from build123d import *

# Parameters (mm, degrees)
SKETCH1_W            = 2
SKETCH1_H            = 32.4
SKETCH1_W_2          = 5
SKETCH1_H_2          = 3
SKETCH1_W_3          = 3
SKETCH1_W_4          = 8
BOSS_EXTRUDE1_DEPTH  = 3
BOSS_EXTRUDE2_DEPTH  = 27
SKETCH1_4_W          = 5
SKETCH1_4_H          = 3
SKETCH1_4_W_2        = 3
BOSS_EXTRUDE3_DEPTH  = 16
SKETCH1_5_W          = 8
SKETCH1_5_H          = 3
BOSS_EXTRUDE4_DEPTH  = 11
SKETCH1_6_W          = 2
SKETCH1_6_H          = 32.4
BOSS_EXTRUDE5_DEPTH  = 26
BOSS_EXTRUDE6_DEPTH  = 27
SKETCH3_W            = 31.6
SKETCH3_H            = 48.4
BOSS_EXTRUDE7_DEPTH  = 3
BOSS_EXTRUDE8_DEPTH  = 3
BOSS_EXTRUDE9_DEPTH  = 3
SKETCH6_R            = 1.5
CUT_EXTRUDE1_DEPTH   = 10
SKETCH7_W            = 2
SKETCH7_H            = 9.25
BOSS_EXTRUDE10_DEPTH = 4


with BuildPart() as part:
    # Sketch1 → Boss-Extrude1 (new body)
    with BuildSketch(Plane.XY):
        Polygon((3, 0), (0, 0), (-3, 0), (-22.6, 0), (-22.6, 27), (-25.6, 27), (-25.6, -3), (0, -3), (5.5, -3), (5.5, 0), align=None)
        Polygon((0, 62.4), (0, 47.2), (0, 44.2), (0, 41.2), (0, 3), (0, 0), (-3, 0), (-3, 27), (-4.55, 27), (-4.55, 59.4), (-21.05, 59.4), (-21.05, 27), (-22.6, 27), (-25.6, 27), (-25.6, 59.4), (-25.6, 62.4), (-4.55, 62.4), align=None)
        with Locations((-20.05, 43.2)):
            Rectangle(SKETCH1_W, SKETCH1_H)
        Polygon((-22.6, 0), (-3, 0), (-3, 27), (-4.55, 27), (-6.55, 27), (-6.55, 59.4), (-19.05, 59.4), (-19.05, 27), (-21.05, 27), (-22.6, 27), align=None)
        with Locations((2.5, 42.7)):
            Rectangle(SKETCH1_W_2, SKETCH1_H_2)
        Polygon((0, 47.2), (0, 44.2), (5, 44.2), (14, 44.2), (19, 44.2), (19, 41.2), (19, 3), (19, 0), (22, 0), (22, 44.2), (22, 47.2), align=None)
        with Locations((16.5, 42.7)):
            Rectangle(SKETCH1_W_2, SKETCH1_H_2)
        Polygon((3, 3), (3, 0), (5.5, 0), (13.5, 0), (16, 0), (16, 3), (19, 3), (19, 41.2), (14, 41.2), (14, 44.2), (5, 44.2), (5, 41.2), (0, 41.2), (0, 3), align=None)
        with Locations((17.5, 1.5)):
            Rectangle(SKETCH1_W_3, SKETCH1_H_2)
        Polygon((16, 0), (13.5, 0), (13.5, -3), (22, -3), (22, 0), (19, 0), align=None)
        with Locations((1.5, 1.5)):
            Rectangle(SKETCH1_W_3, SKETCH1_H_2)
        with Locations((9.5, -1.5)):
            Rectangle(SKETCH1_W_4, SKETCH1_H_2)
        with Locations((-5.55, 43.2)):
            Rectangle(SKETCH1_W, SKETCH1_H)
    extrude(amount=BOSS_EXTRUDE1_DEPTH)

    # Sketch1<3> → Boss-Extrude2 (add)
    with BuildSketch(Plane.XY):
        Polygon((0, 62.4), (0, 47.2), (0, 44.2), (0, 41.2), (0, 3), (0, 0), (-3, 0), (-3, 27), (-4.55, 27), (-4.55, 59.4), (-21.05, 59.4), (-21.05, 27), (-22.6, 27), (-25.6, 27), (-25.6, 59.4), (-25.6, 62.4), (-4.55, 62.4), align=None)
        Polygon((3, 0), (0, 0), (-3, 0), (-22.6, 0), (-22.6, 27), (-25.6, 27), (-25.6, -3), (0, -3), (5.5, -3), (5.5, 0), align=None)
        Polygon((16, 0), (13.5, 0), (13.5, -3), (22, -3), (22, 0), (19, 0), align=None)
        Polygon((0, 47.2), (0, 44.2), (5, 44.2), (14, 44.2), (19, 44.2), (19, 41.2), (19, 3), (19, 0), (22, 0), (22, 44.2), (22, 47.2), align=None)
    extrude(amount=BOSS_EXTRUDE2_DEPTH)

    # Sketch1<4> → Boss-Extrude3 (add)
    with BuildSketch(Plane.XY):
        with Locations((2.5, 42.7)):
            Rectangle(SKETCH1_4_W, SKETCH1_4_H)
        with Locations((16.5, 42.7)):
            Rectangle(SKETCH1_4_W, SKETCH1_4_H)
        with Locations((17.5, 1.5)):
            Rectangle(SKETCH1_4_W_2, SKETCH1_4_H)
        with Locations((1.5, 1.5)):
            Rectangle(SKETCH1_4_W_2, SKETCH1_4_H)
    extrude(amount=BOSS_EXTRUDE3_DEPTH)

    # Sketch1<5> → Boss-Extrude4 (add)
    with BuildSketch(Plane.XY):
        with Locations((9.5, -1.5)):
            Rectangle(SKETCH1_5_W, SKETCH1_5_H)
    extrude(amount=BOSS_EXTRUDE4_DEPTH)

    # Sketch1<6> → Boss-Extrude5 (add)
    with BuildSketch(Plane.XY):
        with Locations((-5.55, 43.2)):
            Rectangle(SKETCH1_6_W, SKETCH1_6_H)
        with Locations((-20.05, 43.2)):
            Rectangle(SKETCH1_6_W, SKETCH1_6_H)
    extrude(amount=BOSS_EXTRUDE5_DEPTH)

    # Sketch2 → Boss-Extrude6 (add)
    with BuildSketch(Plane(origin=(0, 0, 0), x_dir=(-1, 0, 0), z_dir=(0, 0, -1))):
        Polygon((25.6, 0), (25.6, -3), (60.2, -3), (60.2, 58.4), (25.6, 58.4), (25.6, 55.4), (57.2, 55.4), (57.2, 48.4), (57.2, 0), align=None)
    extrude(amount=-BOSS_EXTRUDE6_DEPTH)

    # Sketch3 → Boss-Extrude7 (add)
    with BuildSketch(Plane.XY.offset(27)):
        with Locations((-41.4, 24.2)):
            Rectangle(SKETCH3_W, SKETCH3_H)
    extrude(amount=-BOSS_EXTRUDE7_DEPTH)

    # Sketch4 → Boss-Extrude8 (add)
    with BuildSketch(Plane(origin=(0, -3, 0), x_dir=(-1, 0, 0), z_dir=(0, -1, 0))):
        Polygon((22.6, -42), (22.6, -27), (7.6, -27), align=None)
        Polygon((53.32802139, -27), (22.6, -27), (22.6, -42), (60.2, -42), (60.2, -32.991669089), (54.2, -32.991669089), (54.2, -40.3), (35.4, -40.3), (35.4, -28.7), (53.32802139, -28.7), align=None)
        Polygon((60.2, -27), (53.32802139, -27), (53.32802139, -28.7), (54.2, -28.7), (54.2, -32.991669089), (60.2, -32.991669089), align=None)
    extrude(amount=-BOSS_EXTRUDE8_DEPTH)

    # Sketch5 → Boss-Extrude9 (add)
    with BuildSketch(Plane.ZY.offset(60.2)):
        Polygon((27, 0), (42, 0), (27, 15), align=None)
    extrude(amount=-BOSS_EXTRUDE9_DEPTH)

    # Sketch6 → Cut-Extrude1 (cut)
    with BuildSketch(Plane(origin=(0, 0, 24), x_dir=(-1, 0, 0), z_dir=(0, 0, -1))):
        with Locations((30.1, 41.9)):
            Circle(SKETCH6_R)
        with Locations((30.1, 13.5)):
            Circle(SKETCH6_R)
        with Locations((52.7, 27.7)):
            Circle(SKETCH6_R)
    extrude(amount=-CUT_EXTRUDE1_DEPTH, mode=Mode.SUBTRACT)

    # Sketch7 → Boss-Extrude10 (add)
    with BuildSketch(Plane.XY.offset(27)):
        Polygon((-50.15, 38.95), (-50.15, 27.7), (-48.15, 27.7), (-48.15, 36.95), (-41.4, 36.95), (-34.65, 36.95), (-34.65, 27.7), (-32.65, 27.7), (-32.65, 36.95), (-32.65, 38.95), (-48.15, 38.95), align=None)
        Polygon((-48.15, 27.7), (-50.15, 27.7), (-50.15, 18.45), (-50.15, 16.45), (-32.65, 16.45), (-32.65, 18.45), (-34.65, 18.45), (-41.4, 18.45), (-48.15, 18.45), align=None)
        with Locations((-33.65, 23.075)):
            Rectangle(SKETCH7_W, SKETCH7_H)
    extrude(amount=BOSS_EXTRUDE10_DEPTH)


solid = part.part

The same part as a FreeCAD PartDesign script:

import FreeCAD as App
import Part
import Sketcher
from FreeCAD import Vector
Q = App.Units.Quantity

doc = App.newDocument("Part")
params = doc.addObject("Spreadsheet::Sheet", "Params")
for row, (alias, value) in enumerate([
    ("sketch1_width", "22 mm"),
    ("sketch1_width2", "47.6 mm"),
    ("sketch1_height", "50.2 mm"),
    ("sketch1_height2", "15.2 mm"),
    ("pad1_length", "3 mm"),
    ("sketch2_width", "19 mm"),
    ("sketch2_width2", "22 mm"),
    ("sketch2_height", "3 mm"),
    ("sketch2_height2", "27 mm"),
    ("sketch2_width3", "5.5 mm"),
    ("pad2_length", "27 mm"),
    ("sketch3_width", "5 mm"),
    ("sketch3_width2", "3 mm"),
    ("pad3_length", "16 mm"),
    ("sketch4_width", "8 mm"),
    ("sketch4_height", "3 mm"),
    ("pad4_length", "11 mm"),
    ("sketch5_width", "2 mm"),
    ("sketch5_height", "32.4 mm"),
    ("pad5_length", "26 mm"),
    ("sketch6_height", "3 mm"),
    ("sketch6_width", "34.6 mm"),
    ("sketch6_width2", "31.6 mm"),
    ("sketch6_height2", "61.4 mm"),
    ("pad6_length", "27 mm"),
    ("sketch7_width", "31.6 mm"),
    ("sketch7_height", "48.4 mm"),
    ("pad7_length", "3 mm"),
    ("sketch8_height", "15 mm"),
    ("sketch8_width", "37.6 mm"),
    ("sketch8_width2", "18.8 mm"),
    ("sketch8_height2", "11.6 mm"),
    ("pad8_length", "3 mm"),
    ("sketch9_width", "15 mm"),
    ("pad9_length", "3 mm"),
    ("sketch10_diameter", "3 mm"),
    ("pocket1_length", "10 mm"),
    ("sketch11_width", "17.5 mm"),
    ("sketch11_width2", "13.5 mm"),
    ("sketch11_height", "22.5 mm"),
    ("sketch11_height2", "18.5 mm"),
    ("pad10_length", "4 mm"),
], start=1):
    params.set(f"A{row}", alias)
    params.set(f"B{row}", "=" + value)
    params.setAlias(f"B{row}", alias)

body = doc.addObject("PartDesign::Body", "Body")

# Sketch on XY plane
sketch1 = doc.addObject("Sketcher::SketchObject", "Sketch")
body.addObject(sketch1)
sketch1.AttachmentSupport = (doc.XY_Plane, [""])
sketch1.MapMode = "FlatFace"
sketch1.addGeometry([
    Part.LineSegment(Vector(-26, -3, 0), Vector(22, -3, 0)),  # 0
    Part.LineSegment(Vector(22, -3, 0), Vector(22, 47, 0)),  # 1
    Part.LineSegment(Vector(22, 47, 0), Vector(0, 47, 0)),  # 2
    Part.LineSegment(Vector(0, 47, 0), Vector(0, 62, 0)),  # 3
    Part.LineSegment(Vector(0, 62, 0), Vector(-26, 62, 0)),  # 4
    Part.LineSegment(Vector(-26, 62, 0), Vector(-26, -3, 0)),  # 5
], False)
sketch1.addConstraint([
    Sketcher.Constraint("Coincident", 0, 2, 1, 1),
    Sketcher.Constraint("Coincident", 1, 2, 2, 1),
    Sketcher.Constraint("Coincident", 2, 2, 3, 1),
    Sketcher.Constraint("Coincident", 3, 2, 4, 1),
    Sketcher.Constraint("Coincident", 4, 2, 5, 1),
    Sketcher.Constraint("Coincident", 5, 2, 0, 1),
    Sketcher.Constraint("Horizontal", 0),
    Sketcher.Constraint("Vertical", 1),
    Sketcher.Constraint("Horizontal", 2),
    Sketcher.Constraint("Vertical", 3),
    Sketcher.Constraint("Horizontal", 4),
    Sketcher.Constraint("Vertical", 5),
    Sketcher.Constraint("PointOnObject", 2, 2, -2),
    Sketcher.Constraint("DistanceX", 2, 2, 2, 1, 22.0),
    Sketcher.Constraint("DistanceX", 0, 1, 0, 2, 47.6),
    Sketcher.Constraint("DistanceY", 1, 1, 1, 2, 50.2),
    Sketcher.Constraint("DistanceY", 3, 1, 3, 2, 15.2),
    Sketcher.Constraint("DistanceY", 0, 2, -1, 1, 3.0),
])
sketch1.setExpression("Constraints[13]", "Params.sketch1_width")
sketch1.setExpression("Constraints[14]", "Params.sketch1_width2")
sketch1.setExpression("Constraints[15]", "Params.sketch1_height")
sketch1.setExpression("Constraints[16]", "Params.sketch1_height2")
pad1 = doc.addObject("PartDesign::Pad", "Pad")
body.addObject(pad1)
pad1.Profile = sketch1
pad1.setExpression("Length", "Params.pad1_length")

# Sketch on XY plane
sketch2 = doc.addObject("Sketcher::SketchObject", "Sketch001")
body.addObject(sketch2)
sketch2.AttachmentSupport = (doc.XY_Plane, [""])
sketch2.MapMode = "FlatFace"
sketch2.addGeometry([
    Part.LineSegment(Vector(0, 0, 0), Vector(0, 44.2, 0)),  # 0
    Part.LineSegment(Vector(0, 44.2, 0), Vector(19, 44.2, 0)),  # 1
    Part.LineSegment(Vector(19, 44.2, 0), Vector(19, 0, 0)),  # 2
    Part.LineSegment(Vector(19, 0, 0), Vector(13.5, 0, 0)),  # 3
    Part.LineSegment(Vector(13.5, 0, 0), Vector(13.5, -3, 0)),  # 4
    Part.LineSegment(Vector(13.5, -3, 0), Vector(22, -3, 0)),  # 5
    Part.LineSegment(Vector(22, -3, 0), Vector(22, 47.2, 0)),  # 6
    Part.LineSegment(Vector(22, 47.2, 0), Vector(0, 47.2, 0)),  # 7
    Part.LineSegment(Vector(0, 47.2, 0), Vector(0, 62.4, 0)),  # 8
    Part.LineSegment(Vector(0, 62.4, 0), Vector(-25.6, 62.4, 0)),  # 9
    Part.LineSegment(Vector(-25.6, 62.4, 0), Vector(-25.6, -3, 0)),  # 10
    Part.LineSegment(Vector(-25.6, -3, 0), Vector(5.5, -3, 0)),  # 11
    Part.LineSegment(Vector(5.5, -3, 0), Vector(5.5, 0, 0)),  # 12
    Part.LineSegment(Vector(5.5, 0, 0), Vector(0, 0, 0)),  # 13
    Part.LineSegment(Vector(-3, 27, 0), Vector(-3, 0, 0)),  # 14
    Part.LineSegment(Vector(-3, 0, 0), Vector(-22.6, 0, 0)),  # 15
    Part.LineSegment(Vector(-22.6, 0, 0), Vector(-22.6, 27, 0)),  # 16
    Part.LineSegment(Vector(-22.6, 27, 0), Vector(-21.1, 27, 0)),  # 17
    Part.LineSegment(Vector(-21.1, 27, 0), Vector(-21.1, 59.4, 0)),  # 18
    Part.LineSegment(Vector(-21.1, 59.4, 0), Vector(-4.5, 59.4, 0)),  # 19
    Part.LineSegment(Vector(-4.5, 59.4, 0), Vector(-4.5, 27, 0)),  # 20
    Part.LineSegment(Vector(-4.5, 27, 0), Vector(-3, 27, 0)),  # 21
], False)
sketch2.addConstraint([
    Sketcher.Constraint("Coincident", 0, 2, 1, 1),
    Sketcher.Constraint("Coincident", 1, 2, 2, 1),
    Sketcher.Constraint("Coincident", 2, 2, 3, 1),
    Sketcher.Constraint("Coincident", 3, 2, 4, 1),
    Sketcher.Constraint("Coincident", 4, 2, 5, 1),
    Sketcher.Constraint("Coincident", 5, 2, 6, 1),
    Sketcher.Constraint("Coincident", 6, 2, 7, 1),
    Sketcher.Constraint("Coincident", 7, 2, 8, 1),
    Sketcher.Constraint("Coincident", 8, 2, 9, 1),
    Sketcher.Constraint("Coincident", 9, 2, 10, 1),
    Sketcher.Constraint("Coincident", 10, 2, 11, 1),
    Sketcher.Constraint("Coincident", 11, 2, 12, 1),
    Sketcher.Constraint("Coincident", 12, 2, 13, 1),
    Sketcher.Constraint("Coincident", 13, 2, 0, 1),
    Sketcher.Constraint("Coincident", 14, 2, 15, 1),
    Sketcher.Constraint("Coincident", 15, 2, 16, 1),
    Sketcher.Constraint("Coincident", 16, 2, 17, 1),
    Sketcher.Constraint("Coincident", 17, 2, 18, 1),
    Sketcher.Constraint("Coincident", 18, 2, 19, 1),
    Sketcher.Constraint("Coincident", 19, 2, 20, 1),
    Sketcher.Constraint("Coincident", 20, 2, 21, 1),
    Sketcher.Constraint("Coincident", 21, 2, 14, 1),
    Sketcher.Constraint("Vertical", 0),
    Sketcher.Constraint("Horizontal", 1),
    Sketcher.Constraint("Vertical", 2),
    Sketcher.Constraint("Horizontal", 3),
    Sketcher.Constraint("Vertical", 4),
    Sketcher.Constraint("Horizontal", 5),
    Sketcher.Constraint("Vertical", 6),
    Sketcher.Constraint("Horizontal", 7),
    Sketcher.Constraint("Vertical", 8),
    Sketcher.Constraint("Horizontal", 9),
    Sketcher.Constraint("Vertical", 10),
    Sketcher.Constraint("Horizontal", 11),
    Sketcher.Constraint("Vertical", 12),
    Sketcher.Constraint("Horizontal", 13),
    Sketcher.Constraint("Vertical", 14),
    Sketcher.Constraint("Horizontal", 15),
    Sketcher.Constraint("Vertical", 16),
    Sketcher.Constraint("Horizontal", 17),
    Sketcher.Constraint("Vertical", 18),
    Sketcher.Constraint("Horizontal", 19),
    Sketcher.Constraint("Vertical", 20),
    Sketcher.Constraint("Horizontal", 21),
    Sketcher.Constraint("Coincident", 13, 2, -1, 1),
    Sketcher.Constraint("PointOnObject", 2, 2, -1),
    Sketcher.Constraint("PointOnObject", 7, 2, -2),
    Sketcher.Constraint("PointOnObject", 14, 2, -1),
    Sketcher.Constraint("Horizontal", 5, 2, 10, 2),
    Sketcher.Constraint("Horizontal", 17, 2, 20, 2),
    Sketcher.Constraint("Equal", 3, 13),
    Sketcher.Constraint("Equal", 17, 21),
    Sketcher.Constraint("DistanceX", 1, 1, 1, 2, 19.0),
    Sketcher.Constraint("DistanceX", 7, 2, 7, 1, 22.0),
    Sketcher.Constraint("DistanceY", 4, 2, 4, 1, 3.0),
    Sketcher.Constraint("DistanceY", 14, 2, 14, 1, 27.0),
    Sketcher.Constraint("DistanceX", 3, 2, 3, 1, 5.5),
    Sketcher.Constraint("DistanceX", 9, 2, 9, 1, 25.6),
    Sketcher.Constraint("DistanceX", 15, 2, 15, 1, 19.6),
    Sketcher.Constraint("DistanceX", 19, 1, 19, 2, 16.5),
    Sketcher.Constraint("DistanceY", 0, 1, 0, 2, 44.2),
    Sketcher.Constraint("DistanceY", 6, 1, 6, 2, 50.2),
    Sketcher.Constraint("DistanceY", 8, 1, 8, 2, 15.2),
    Sketcher.Constraint("DistanceY", 18, 1, 18, 2, 32.4),
    Sketcher.Constraint("DistanceX", 14, 2, -1, 1, 3.0),
])
sketch2.setExpression("Constraints[52]", "Params.sketch2_width")
sketch2.setExpression("Constraints[53]", "Params.sketch2_width2")
sketch2.setExpression("Constraints[54]", "Params.sketch2_height")
sketch2.setExpression("Constraints[55]", "Params.sketch2_height2")
sketch2.setExpression("Constraints[56]", "Params.sketch2_width3")
pad2 = doc.addObject("PartDesign::Pad", "Pad001")
body.addObject(pad2)
pad2.Profile = sketch2
pad2.setExpression("Length", "Params.pad2_length")

# Sketch on XY plane
sketch3 = doc.addObject("Sketcher::SketchObject", "Sketch002")
body.addObject(sketch3)
sketch3.AttachmentSupport = (doc.XY_Plane, [""])
sketch3.MapMode = "FlatFace"
sketch3.addGeometry([
    Part.LineSegment(Vector(0, 44.2, 0), Vector(0, 41.2, 0)),  # 0
    Part.LineSegment(Vector(0, 41.2, 0), Vector(5, 41.2, 0)),  # 1
    Part.LineSegment(Vector(5, 41.2, 0), Vector(5, 44.2, 0)),  # 2
    Part.LineSegment(Vector(5, 44.2, 0), Vector(0, 44.2, 0)),  # 3
    Part.LineSegment(Vector(14, 44.2, 0), Vector(14, 41.2, 0)),  # 4
    Part.LineSegment(Vector(14, 41.2, 0), Vector(19, 41.2, 0)),  # 5
    Part.LineSegment(Vector(19, 41.2, 0), Vector(19, 44.2, 0)),  # 6
    Part.LineSegment(Vector(19, 44.2, 0), Vector(14, 44.2, 0)),  # 7
    Part.LineSegment(Vector(16, 3, 0), Vector(16, 0, 0)),  # 8
    Part.LineSegment(Vector(16, 0, 0), Vector(19, 0, 0)),  # 9
    Part.LineSegment(Vector(19, 0, 0), Vector(19, 3, 0)),  # 10
    Part.LineSegment(Vector(19, 3, 0), Vector(16, 3, 0)),  # 11
    Part.LineSegment(Vector(0, 3, 0), Vector(0, 0, 0)),  # 12
    Part.LineSegment(Vector(0, 0, 0), Vector(3, 0, 0)),  # 13
    Part.LineSegment(Vector(3, 0, 0), Vector(3, 3, 0)),  # 14
    Part.LineSegment(Vector(3, 3, 0), Vector(0, 3, 0)),  # 15
], False)
sketch3.addConstraint([
    Sketcher.Constraint("Coincident", 0, 2, 1, 1),
    Sketcher.Constraint("Coincident", 1, 2, 2, 1),
    Sketcher.Constraint("Coincident", 2, 2, 3, 1),
    Sketcher.Constraint("Coincident", 3, 2, 0, 1),
    Sketcher.Constraint("Coincident", 4, 2, 5, 1),
    Sketcher.Constraint("Coincident", 5, 2, 6, 1),
    Sketcher.Constraint("Coincident", 6, 2, 7, 1),
    Sketcher.Constraint("Coincident", 7, 2, 4, 1),
    Sketcher.Constraint("Coincident", 8, 2, 9, 1),
    Sketcher.Constraint("Coincident", 9, 2, 10, 1),
    Sketcher.Constraint("Coincident", 10, 2, 11, 1),
    Sketcher.Constraint("Coincident", 11, 2, 8, 1),
    Sketcher.Constraint("Coincident", 12, 2, 13, 1),
    Sketcher.Constraint("Coincident", 13, 2, 14, 1),
    Sketcher.Constraint("Coincident", 14, 2, 15, 1),
    Sketcher.Constraint("Coincident", 15, 2, 12, 1),
    Sketcher.Constraint("Vertical", 0),
    Sketcher.Constraint("Horizontal", 1),
    Sketcher.Constraint("Vertical", 2),
    Sketcher.Constraint("Horizontal", 3),
    Sketcher.Constraint("Vertical", 4),
    Sketcher.Constraint("Horizontal", 5),
    Sketcher.Constraint("Vertical", 6),
    Sketcher.Constraint("Horizontal", 7),
    Sketcher.Constraint("Vertical", 8),
    Sketcher.Constraint("Horizontal", 9),
    Sketcher.Constraint("Vertical", 10),
    Sketcher.Constraint("Horizontal", 11),
    Sketcher.Constraint("Vertical", 12),
    Sketcher.Constraint("Horizontal", 13),
    Sketcher.Constraint("Vertical", 14),
    Sketcher.Constraint("Horizontal", 15),
    Sketcher.Constraint("Coincident", 12, 2, -1, 1),
    Sketcher.Constraint("PointOnObject", 0, 2, -2),
    Sketcher.Constraint("PointOnObject", 8, 2, -1),
    Sketcher.Constraint("Horizontal", 1, 2, 4, 2),
    Sketcher.Constraint("Horizontal", 3, 2, 6, 2),
    Sketcher.Constraint("Horizontal", 11, 2, 14, 2),
    Sketcher.Constraint("Vertical", 6, 2, 9, 2),
    Sketcher.Constraint("Equal", 3, 5),
    Sketcher.Constraint("Equal", 11, 13),
    Sketcher.Constraint("Equal", 15, 0),
    Sketcher.Constraint("Equal", 6, 8),
    Sketcher.Constraint("DistanceX", 1, 1, 1, 2, 5.0),
    Sketcher.Constraint("DistanceX", 9, 1, 9, 2, 3.0),
    Sketcher.Constraint("DistanceX", -1, 1, 4, 2, 14.0),
    Sketcher.Constraint("DistanceY", -1, 1, 0, 2, 41.2),
])
sketch3.setExpression("Constraints[43]", "Params.sketch3_width")
sketch3.setExpression("Constraints[44]", "Params.sketch3_width2")
pad3 = doc.addObject("PartDesign::Pad", "Pad002")
body.addObject(pad3)
pad3.Profile = sketch3
pad3.setExpression("Length", "Params.pad3_length")

# Sketch on XY plane
sketch4 = doc.addObject("Sketcher::SketchObject", "Sketch003")
body.addObject(sketch4)
sketch4.AttachmentSupport = (doc.XY_Plane, [""])
sketch4.MapMode = "FlatFace"
sketch4.addGeometry([
    Part.LineSegment(Vector(5.5, 0, 0), Vector(5.5, -3, 0)),
    Part.LineSegment(Vector(5.5, -3, 0), Vector(13.5, -3, 0)),
    Part.LineSegment(Vector(13.5, -3, 0), Vector(13.5, 0, 0)),
    Part.LineSegment(Vector(13.5, 0, 0), Vector(5.5, 0, 0)),
], False)
sketch4.addConstraint([
    Sketcher.Constraint("Coincident", 0, 2, 1, 1),
    Sketcher.Constraint("Coincident", 1, 2, 2, 1),
    Sketcher.Constraint("Coincident", 2, 2, 3, 1),
    Sketcher.Constraint("Coincident", 3, 2, 0, 1),
    Sketcher.Constraint("Vertical", 0),
    Sketcher.Constraint("Horizontal", 1),
    Sketcher.Constraint("Vertical", 2),
    Sketcher.Constraint("Horizontal", 3),
    Sketcher.Constraint("PointOnObject", 2, 2, -1),
    Sketcher.Constraint("DistanceX", 1, 1, 1, 2, 8.0),
    Sketcher.Constraint("DistanceY", 0, 2, 0, 1, 3.0),
    Sketcher.Constraint("DistanceX", -1, 1, 0, 2, 5.5),
])
sketch4.setExpression("Constraints[9]", "Params.sketch4_width")
sketch4.setExpression("Constraints[10]", "Params.sketch4_height")
pad4 = doc.addObject("PartDesign::Pad", "Pad003")
body.addObject(pad4)
pad4.Profile = sketch4
pad4.setExpression("Length", "Params.pad4_length")

# Sketch on XY plane
sketch5 = doc.addObject("Sketcher::SketchObject", "Sketch004")
body.addObject(sketch5)
sketch5.AttachmentSupport = (doc.XY_Plane, [""])
sketch5.MapMode = "FlatFace"
sketch5.addGeometry([
    Part.LineSegment(Vector(-6.5, 59.4, 0), Vector(-6.5, 27, 0)),  # 0
    Part.LineSegment(Vector(-6.5, 27, 0), Vector(-4.5, 27, 0)),  # 1
    Part.LineSegment(Vector(-4.5, 27, 0), Vector(-4.5, 59.4, 0)),  # 2
    Part.LineSegment(Vector(-4.5, 59.4, 0), Vector(-6.5, 59.4, 0)),  # 3
    Part.LineSegment(Vector(-21.1, 59.4, 0), Vector(-21.1, 27, 0)),  # 4
    Part.LineSegment(Vector(-21.1, 27, 0), Vector(-19.1, 27, 0)),  # 5
    Part.LineSegment(Vector(-19.1, 27, 0), Vector(-19.1, 59.4, 0)),  # 6
    Part.LineSegment(Vector(-19.1, 59.4, 0), Vector(-21.1, 59.4, 0)),  # 7
], False)
sketch5.addConstraint([
    Sketcher.Constraint("Coincident", 0, 2, 1, 1),
    Sketcher.Constraint("Coincident", 1, 2, 2, 1),
    Sketcher.Constraint("Coincident", 2, 2, 3, 1),
    Sketcher.Constraint("Coincident", 3, 2, 0, 1),
    Sketcher.Constraint("Coincident", 4, 2, 5, 1),
    Sketcher.Constraint("Coincident", 5, 2, 6, 1),
    Sketcher.Constraint("Coincident", 6, 2, 7, 1),
    Sketcher.Constraint("Coincident", 7, 2, 4, 1),
    Sketcher.Constraint("Vertical", 0),
    Sketcher.Constraint("Horizontal", 1),
    Sketcher.Constraint("Vertical", 2),
    Sketcher.Constraint("Horizontal", 3),
    Sketcher.Constraint("Vertical", 4),
    Sketcher.Constraint("Horizontal", 5),
    Sketcher.Constraint("Vertical", 6),
    Sketcher.Constraint("Horizontal", 7),
    Sketcher.Constraint("Horizontal", 1, 2, 4, 2),
    Sketcher.Constraint("Horizontal", 3, 2, 6, 2),
    Sketcher.Constraint("Equal", 3, 5),
    Sketcher.Constraint("DistanceX", 1, 1, 1, 2, 2.0),
    Sketcher.Constraint("DistanceY", 0, 2, 0, 1, 32.4),
    Sketcher.Constraint("DistanceY", -1, 1, 0, 2, 27.0),
    Sketcher.Constraint("DistanceX", 4, 2, 0, 2, 14.5),
    Sketcher.Constraint("DistanceX", 0, 2, -1, 1, 6.55),
])
sketch5.setExpression("Constraints[19]", "Params.sketch5_width")
sketch5.setExpression("Constraints[20]", "Params.sketch5_height")
pad5 = doc.addObject("PartDesign::Pad", "Pad004")
body.addObject(pad5)
pad5.Profile = sketch5
pad5.setExpression("Length", "Params.pad5_length")

# Sketch on XY plane
sketch6 = doc.addObject("Sketcher::SketchObject", "Sketch005")
body.addObject(sketch6)
sketch6.AttachmentSupport = (doc.XY_Plane, [""])
sketch6.MapMode = "FlatFace"
sketch6.addGeometry([
    Part.LineSegment(Vector(-25.6, 0, 0), Vector(-25.6, -3, 0)),  # 0
    Part.LineSegment(Vector(-25.6, -3, 0), Vector(-60.2, -3, 0)),  # 1
    Part.LineSegment(Vector(-60.2, -3, 0), Vector(-60.2, 58.4, 0)),  # 2
    Part.LineSegment(Vector(-60.2, 58.4, 0), Vector(-25.6, 58.4, 0)),  # 3
    Part.LineSegment(Vector(-25.6, 58.4, 0), Vector(-25.6, 55.4, 0)),  # 4
    Part.LineSegment(Vector(-25.6, 55.4, 0), Vector(-57.2, 55.4, 0)),  # 5
    Part.LineSegment(Vector(-57.2, 55.4, 0), Vector(-57.2, 0, 0)),  # 6
    Part.LineSegment(Vector(-57.2, 0, 0), Vector(-25.6, 0, 0)),  # 7
], False)
sketch6.addConstraint([
    Sketcher.Constraint("Coincident", 0, 2, 1, 1),
    Sketcher.Constraint("Coincident", 1, 2, 2, 1),
    Sketcher.Constraint("Coincident", 2, 2, 3, 1),
    Sketcher.Constraint("Coincident", 3, 2, 4, 1),
    Sketcher.Constraint("Coincident", 4, 2, 5, 1),
    Sketcher.Constraint("Coincident", 5, 2, 6, 1),
    Sketcher.Constraint("Coincident", 6, 2, 7, 1),
    Sketcher.Constraint("Coincident", 7, 2, 0, 1),
    Sketcher.Constraint("Vertical", 0),
    Sketcher.Constraint("Horizontal", 1),
    Sketcher.Constraint("Vertical", 2),
    Sketcher.Constraint("Horizontal", 3),
    Sketcher.Constraint("Vertical", 4),
    Sketcher.Constraint("Horizontal", 5),
    Sketcher.Constraint("Vertical", 6),
    Sketcher.Constraint("Horizontal", 7),
    Sketcher.Constraint("PointOnObject", 6, 2, -1),
    Sketcher.Constraint("Vertical", 0, 2, 3, 2),
    Sketcher.Constraint("Equal", 0, 4),
    Sketcher.Constraint("DistanceY", 0, 2, 0, 1, 3.0),
    Sketcher.Constraint("DistanceX", 1, 2, 1, 1, 34.6),
    Sketcher.Constraint("DistanceX", 5, 2, 5, 1, 31.6),
    Sketcher.Constraint("DistanceY", 2, 1, 2, 2, 61.4),
    Sketcher.Constraint("DistanceX", 0, 2, -1, 1, 25.6),
])
sketch6.setExpression("Constraints[19]", "Params.sketch6_height")
sketch6.setExpression("Constraints[20]", "Params.sketch6_width")
sketch6.setExpression("Constraints[21]", "Params.sketch6_width2")
sketch6.setExpression("Constraints[22]", "Params.sketch6_height2")
pad6 = doc.addObject("PartDesign::Pad", "Pad005")
body.addObject(pad6)
pad6.Profile = sketch6
pad6.setExpression("Length", "Params.pad6_length")

# Sketch on XY plane
sketch7 = doc.addObject("Sketcher::SketchObject", "Sketch006")
body.addObject(sketch7)
sketch7.AttachmentSupport = (doc.XY_Plane, [""])
sketch7.MapMode = "FlatFace"
sketch7.AttachmentOffset = App.Placement(Vector(0, 0, 27), App.Rotation())
sketch7.addGeometry([
    Part.LineSegment(Vector(-57, 48, 0), Vector(-57, 0, 0)),
    Part.LineSegment(Vector(-57, 0, 0), Vector(-26, 0, 0)),
    Part.LineSegment(Vector(-26, 0, 0), Vector(-26, 48, 0)),
    Part.LineSegment(Vector(-26, 48, 0), Vector(-57, 48, 0)),
], False)
sketch7.addConstraint([
    Sketcher.Constraint("Coincident", 0, 2, 1, 1),
    Sketcher.Constraint("Coincident", 1, 2, 2, 1),
    Sketcher.Constraint("Coincident", 2, 2, 3, 1),
    Sketcher.Constraint("Coincident", 3, 2, 0, 1),
    Sketcher.Constraint("Vertical", 0),
    Sketcher.Constraint("Horizontal", 1),
    Sketcher.Constraint("Vertical", 2),
    Sketcher.Constraint("Horizontal", 3),
    Sketcher.Constraint("PointOnObject", 0, 2, -1),
    Sketcher.Constraint("DistanceX", 1, 1, 1, 2, 31.6),
    Sketcher.Constraint("DistanceY", 0, 2, 0, 1, 48.4),
    Sketcher.Constraint("DistanceX", 0, 2, -1, 1, 57.2),
])
sketch7.setExpression("Constraints[9]", "Params.sketch7_width")
sketch7.setExpression("Constraints[10]", "Params.sketch7_height")
pad7 = doc.addObject("PartDesign::Pad", "Pad006")
body.addObject(pad7)
pad7.Profile = sketch7
pad7.setExpression("Length", "Params.pad7_length")
pad7.Reversed = True

# Sketch on XZ plane
sketch8 = doc.addObject("Sketcher::SketchObject", "Sketch007")
body.addObject(sketch8)
sketch8.AttachmentSupport = (doc.XZ_Plane, [""])
sketch8.MapMode = "FlatFace"
sketch8.AttachmentOffset = App.Placement(Vector(0, 0, 3), App.Rotation())
sketch8.addGeometry([
    Part.LineSegment(Vector(-8, 27, 0), Vector(-23, 42, 0)),  # 0
    Part.LineSegment(Vector(-23, 42, 0), Vector(-60, 42, 0)),  # 1
    Part.LineSegment(Vector(-60, 42, 0), Vector(-60, 27, 0)),  # 2
    Part.LineSegment(Vector(-60, 27, 0), Vector(-8, 27, 0)),  # 3
    Part.LineSegment(Vector(-54, 40, 0), Vector(-35, 40, 0)),  # 4
    Part.LineSegment(Vector(-35, 40, 0), Vector(-35, 29, 0)),  # 5
    Part.LineSegment(Vector(-35, 29, 0), Vector(-54, 29, 0)),  # 6
    Part.LineSegment(Vector(-54, 29, 0), Vector(-54, 40, 0)),  # 7
], False)
sketch8.addConstraint([
    Sketcher.Constraint("Coincident", 0, 2, 1, 1),
    Sketcher.Constraint("Coincident", 1, 2, 2, 1),
    Sketcher.Constraint("Coincident", 2, 2, 3, 1),
    Sketcher.Constraint("Coincident", 3, 2, 0, 1),
    Sketcher.Constraint("Coincident", 4, 2, 5, 1),
    Sketcher.Constraint("Coincident", 5, 2, 6, 1),
    Sketcher.Constraint("Coincident", 6, 2, 7, 1),
    Sketcher.Constraint("Coincident", 7, 2, 4, 1),
    Sketcher.Constraint("Horizontal", 1),
    Sketcher.Constraint("Vertical", 2),
    Sketcher.Constraint("Horizontal", 3),
    Sketcher.Constraint("Horizontal", 4),
    Sketcher.Constraint("Vertical", 5),
    Sketcher.Constraint("Horizontal", 6),
    Sketcher.Constraint("Vertical", 7),
    Sketcher.Constraint("DistanceY", 2, 2, 2, 1, 15.0),
    Sketcher.Constraint("Angle", 0, Q("135 deg")),
    Sketcher.Constraint("DistanceX", 1, 2, 1, 1, 37.6),
    Sketcher.Constraint("DistanceX", 4, 1, 4, 2, 18.8),
    Sketcher.Constraint("DistanceY", 5, 2, 5, 1, 11.6),
    Sketcher.Constraint("DistanceY", -1, 1, 0, 2, 42.0),
    Sketcher.Constraint("DistanceX", 2, 2, 6, 2, 6.0),
    Sketcher.Constraint("DistanceX", 0, 2, -1, 1, 22.6),
    Sketcher.Constraint("DistanceY", -1, 1, 4, 2, 40.3),
])
sketch8.setExpression("Constraints[15]", "Params.sketch8_height")
sketch8.setExpression("Constraints[17]", "Params.sketch8_width")
sketch8.setExpression("Constraints[18]", "Params.sketch8_width2")
sketch8.setExpression("Constraints[19]", "Params.sketch8_height2")
pad8 = doc.addObject("PartDesign::Pad", "Pad007")
body.addObject(pad8)
pad8.Profile = sketch8
pad8.setExpression("Length", "Params.pad8_length")
pad8.Reversed = True

# Sketch on YZ plane
sketch9 = doc.addObject("Sketcher::SketchObject", "Sketch008")
body.addObject(sketch9)
sketch9.AttachmentSupport = (doc.YZ_Plane, [""])
sketch9.MapMode = "FlatFace"
sketch9.AttachmentOffset = App.Placement(Vector(0, 0, -60.2), App.Rotation())
sketch9.addGeometry([
    Part.LineSegment(Vector(0, 27, 0), Vector(0, 42, 0)),
    Part.LineSegment(Vector(0, 42, 0), Vector(15, 27, 0)),
    Part.LineSegment(Vector(15, 27, 0), Vector(0, 27, 0)),
], False)
sketch9.addConstraint([
    Sketcher.Constraint("Coincident", 0, 2, 1, 1),
    Sketcher.Constraint("Coincident", 1, 2, 2, 1),
    Sketcher.Constraint("Coincident", 2, 2, 0, 1),
    Sketcher.Constraint("Vertical", 0),
    Sketcher.Constraint("Horizontal", 2),
    Sketcher.Constraint("PointOnObject", 0, 2, -2),
    Sketcher.Constraint("Equal", 2, 0),
    Sketcher.Constraint("DistanceX", 2, 2, 2, 1, 15.0),
    Sketcher.Constraint("DistanceY", -1, 1, 0, 2, 42.0),
])
sketch9.setExpression("Constraints[7]", "Params.sketch9_width")
pad9 = doc.addObject("PartDesign::Pad", "Pad008")
body.addObject(pad9)
pad9.Profile = sketch9
pad9.setExpression("Length", "Params.pad9_length")

# Sketch on XY plane
sketch10 = doc.addObject("Sketcher::SketchObject", "Sketch009")
body.addObject(sketch10)
sketch10.AttachmentSupport = (doc.XY_Plane, [""])
sketch10.MapMode = "FlatFace"
sketch10.AttachmentOffset = App.Placement(Vector(0, 0, 24), App.Rotation())
sketch10.addGeometry([
    Part.Circle(Vector(-30.1, 41.9, 0), Vector(0, 0, 1), 1.5),
    Part.Circle(Vector(-30.1, 13.5, 0), Vector(0, 0, 1), 1.5),
    Part.Circle(Vector(-52.7, 27.7, 0), Vector(0, 0, 1), 1.5),
], False)
sketch10.addConstraint([
    Sketcher.Constraint("Equal", 0, 1),
    Sketcher.Constraint("Equal", 1, 2),
    Sketcher.Constraint("Vertical", 0, 3, 1, 3),
    Sketcher.Constraint("Diameter", 0, 3.0),
    Sketcher.Constraint("DistanceX", 0, 3, -1, 1, 30.1),
    Sketcher.Constraint("DistanceY", -1, 1, 0, 3, 41.9),
    Sketcher.Constraint("DistanceY", -1, 1, 1, 3, 13.5),
    Sketcher.Constraint("DistanceX", 2, 3, -1, 1, 52.7),
    Sketcher.Constraint("DistanceY", -1, 1, 2, 3, 27.7),
])
sketch10.setExpression("Constraints[3]", "Params.sketch10_diameter")
pocket1 = doc.addObject("PartDesign::Pocket", "Pocket")
body.addObject(pocket1)
pocket1.Profile = sketch10
pocket1.setExpression("Length", "Params.pocket1_length")
pocket1.Reversed = True

# Sketch on XY plane
sketch11 = doc.addObject("Sketcher::SketchObject", "Sketch010")
body.addObject(sketch11)
sketch11.AttachmentSupport = (doc.XY_Plane, [""])
sketch11.MapMode = "FlatFace"
sketch11.AttachmentOffset = App.Placement(Vector(0, 0, 27), App.Rotation())
sketch11.addGeometry([
    Part.LineSegment(Vector(-50, 39, 0), Vector(-50, 16, 0)),  # 0
    Part.LineSegment(Vector(-50, 16, 0), Vector(-33, 16, 0)),  # 1
    Part.LineSegment(Vector(-33, 16, 0), Vector(-33, 39, 0)),  # 2
    Part.LineSegment(Vector(-33, 39, 0), Vector(-50, 39, 0)),  # 3
    Part.LineSegment(Vector(-35, 18, 0), Vector(-48, 18, 0)),  # 4
    Part.LineSegment(Vector(-48, 18, 0), Vector(-48, 37, 0)),  # 5
    Part.LineSegment(Vector(-48, 37, 0), Vector(-35, 37, 0)),  # 6
    Part.LineSegment(Vector(-35, 37, 0), Vector(-35, 18, 0)),  # 7
], False)
sketch11.addConstraint([
    Sketcher.Constraint("Coincident", 0, 2, 1, 1),
    Sketcher.Constraint("Coincident", 1, 2, 2, 1),
    Sketcher.Constraint("Coincident", 2, 2, 3, 1),
    Sketcher.Constraint("Coincident", 3, 2, 0, 1),
    Sketcher.Constraint("Coincident", 4, 2, 5, 1),
    Sketcher.Constraint("Coincident", 5, 2, 6, 1),
    Sketcher.Constraint("Coincident", 6, 2, 7, 1),
    Sketcher.Constraint("Coincident", 7, 2, 4, 1),
    Sketcher.Constraint("Vertical", 0),
    Sketcher.Constraint("Horizontal", 1),
    Sketcher.Constraint("Vertical", 2),
    Sketcher.Constraint("Horizontal", 3),
    Sketcher.Constraint("Horizontal", 4),
    Sketcher.Constraint("Vertical", 5),
    Sketcher.Constraint("Horizontal", 6),
    Sketcher.Constraint("Vertical", 7),
    Sketcher.Constraint("DistanceX", 1, 1, 1, 2, 17.5),
    Sketcher.Constraint("DistanceX", 4, 2, 4, 1, 13.5),
    Sketcher.Constraint("DistanceY", 0, 2, 0, 1, 22.5),
    Sketcher.Constraint("DistanceY", 5, 1, 5, 2, 18.5),
    Sketcher.Constraint("DistanceX", 0, 2, 4, 2, 2.0),
    Sketcher.Constraint("DistanceY", 0, 2, 4, 2, 2.0),
    Sketcher.Constraint("DistanceX", 0, 2, -1, 1, 50.15),
    Sketcher.Constraint("DistanceY", -1, 1, 0, 2, 16.45),
])
sketch11.setExpression("Constraints[16]", "Params.sketch11_width")
sketch11.setExpression("Constraints[17]", "Params.sketch11_width2")
sketch11.setExpression("Constraints[18]", "Params.sketch11_height")
sketch11.setExpression("Constraints[19]", "Params.sketch11_height2")
pad10 = doc.addObject("PartDesign::Pad", "Pad009")
body.addObject(pad10)
pad10.Profile = sketch11
pad10.setExpression("Length", "Params.pad10_length")

doc.recompute()
